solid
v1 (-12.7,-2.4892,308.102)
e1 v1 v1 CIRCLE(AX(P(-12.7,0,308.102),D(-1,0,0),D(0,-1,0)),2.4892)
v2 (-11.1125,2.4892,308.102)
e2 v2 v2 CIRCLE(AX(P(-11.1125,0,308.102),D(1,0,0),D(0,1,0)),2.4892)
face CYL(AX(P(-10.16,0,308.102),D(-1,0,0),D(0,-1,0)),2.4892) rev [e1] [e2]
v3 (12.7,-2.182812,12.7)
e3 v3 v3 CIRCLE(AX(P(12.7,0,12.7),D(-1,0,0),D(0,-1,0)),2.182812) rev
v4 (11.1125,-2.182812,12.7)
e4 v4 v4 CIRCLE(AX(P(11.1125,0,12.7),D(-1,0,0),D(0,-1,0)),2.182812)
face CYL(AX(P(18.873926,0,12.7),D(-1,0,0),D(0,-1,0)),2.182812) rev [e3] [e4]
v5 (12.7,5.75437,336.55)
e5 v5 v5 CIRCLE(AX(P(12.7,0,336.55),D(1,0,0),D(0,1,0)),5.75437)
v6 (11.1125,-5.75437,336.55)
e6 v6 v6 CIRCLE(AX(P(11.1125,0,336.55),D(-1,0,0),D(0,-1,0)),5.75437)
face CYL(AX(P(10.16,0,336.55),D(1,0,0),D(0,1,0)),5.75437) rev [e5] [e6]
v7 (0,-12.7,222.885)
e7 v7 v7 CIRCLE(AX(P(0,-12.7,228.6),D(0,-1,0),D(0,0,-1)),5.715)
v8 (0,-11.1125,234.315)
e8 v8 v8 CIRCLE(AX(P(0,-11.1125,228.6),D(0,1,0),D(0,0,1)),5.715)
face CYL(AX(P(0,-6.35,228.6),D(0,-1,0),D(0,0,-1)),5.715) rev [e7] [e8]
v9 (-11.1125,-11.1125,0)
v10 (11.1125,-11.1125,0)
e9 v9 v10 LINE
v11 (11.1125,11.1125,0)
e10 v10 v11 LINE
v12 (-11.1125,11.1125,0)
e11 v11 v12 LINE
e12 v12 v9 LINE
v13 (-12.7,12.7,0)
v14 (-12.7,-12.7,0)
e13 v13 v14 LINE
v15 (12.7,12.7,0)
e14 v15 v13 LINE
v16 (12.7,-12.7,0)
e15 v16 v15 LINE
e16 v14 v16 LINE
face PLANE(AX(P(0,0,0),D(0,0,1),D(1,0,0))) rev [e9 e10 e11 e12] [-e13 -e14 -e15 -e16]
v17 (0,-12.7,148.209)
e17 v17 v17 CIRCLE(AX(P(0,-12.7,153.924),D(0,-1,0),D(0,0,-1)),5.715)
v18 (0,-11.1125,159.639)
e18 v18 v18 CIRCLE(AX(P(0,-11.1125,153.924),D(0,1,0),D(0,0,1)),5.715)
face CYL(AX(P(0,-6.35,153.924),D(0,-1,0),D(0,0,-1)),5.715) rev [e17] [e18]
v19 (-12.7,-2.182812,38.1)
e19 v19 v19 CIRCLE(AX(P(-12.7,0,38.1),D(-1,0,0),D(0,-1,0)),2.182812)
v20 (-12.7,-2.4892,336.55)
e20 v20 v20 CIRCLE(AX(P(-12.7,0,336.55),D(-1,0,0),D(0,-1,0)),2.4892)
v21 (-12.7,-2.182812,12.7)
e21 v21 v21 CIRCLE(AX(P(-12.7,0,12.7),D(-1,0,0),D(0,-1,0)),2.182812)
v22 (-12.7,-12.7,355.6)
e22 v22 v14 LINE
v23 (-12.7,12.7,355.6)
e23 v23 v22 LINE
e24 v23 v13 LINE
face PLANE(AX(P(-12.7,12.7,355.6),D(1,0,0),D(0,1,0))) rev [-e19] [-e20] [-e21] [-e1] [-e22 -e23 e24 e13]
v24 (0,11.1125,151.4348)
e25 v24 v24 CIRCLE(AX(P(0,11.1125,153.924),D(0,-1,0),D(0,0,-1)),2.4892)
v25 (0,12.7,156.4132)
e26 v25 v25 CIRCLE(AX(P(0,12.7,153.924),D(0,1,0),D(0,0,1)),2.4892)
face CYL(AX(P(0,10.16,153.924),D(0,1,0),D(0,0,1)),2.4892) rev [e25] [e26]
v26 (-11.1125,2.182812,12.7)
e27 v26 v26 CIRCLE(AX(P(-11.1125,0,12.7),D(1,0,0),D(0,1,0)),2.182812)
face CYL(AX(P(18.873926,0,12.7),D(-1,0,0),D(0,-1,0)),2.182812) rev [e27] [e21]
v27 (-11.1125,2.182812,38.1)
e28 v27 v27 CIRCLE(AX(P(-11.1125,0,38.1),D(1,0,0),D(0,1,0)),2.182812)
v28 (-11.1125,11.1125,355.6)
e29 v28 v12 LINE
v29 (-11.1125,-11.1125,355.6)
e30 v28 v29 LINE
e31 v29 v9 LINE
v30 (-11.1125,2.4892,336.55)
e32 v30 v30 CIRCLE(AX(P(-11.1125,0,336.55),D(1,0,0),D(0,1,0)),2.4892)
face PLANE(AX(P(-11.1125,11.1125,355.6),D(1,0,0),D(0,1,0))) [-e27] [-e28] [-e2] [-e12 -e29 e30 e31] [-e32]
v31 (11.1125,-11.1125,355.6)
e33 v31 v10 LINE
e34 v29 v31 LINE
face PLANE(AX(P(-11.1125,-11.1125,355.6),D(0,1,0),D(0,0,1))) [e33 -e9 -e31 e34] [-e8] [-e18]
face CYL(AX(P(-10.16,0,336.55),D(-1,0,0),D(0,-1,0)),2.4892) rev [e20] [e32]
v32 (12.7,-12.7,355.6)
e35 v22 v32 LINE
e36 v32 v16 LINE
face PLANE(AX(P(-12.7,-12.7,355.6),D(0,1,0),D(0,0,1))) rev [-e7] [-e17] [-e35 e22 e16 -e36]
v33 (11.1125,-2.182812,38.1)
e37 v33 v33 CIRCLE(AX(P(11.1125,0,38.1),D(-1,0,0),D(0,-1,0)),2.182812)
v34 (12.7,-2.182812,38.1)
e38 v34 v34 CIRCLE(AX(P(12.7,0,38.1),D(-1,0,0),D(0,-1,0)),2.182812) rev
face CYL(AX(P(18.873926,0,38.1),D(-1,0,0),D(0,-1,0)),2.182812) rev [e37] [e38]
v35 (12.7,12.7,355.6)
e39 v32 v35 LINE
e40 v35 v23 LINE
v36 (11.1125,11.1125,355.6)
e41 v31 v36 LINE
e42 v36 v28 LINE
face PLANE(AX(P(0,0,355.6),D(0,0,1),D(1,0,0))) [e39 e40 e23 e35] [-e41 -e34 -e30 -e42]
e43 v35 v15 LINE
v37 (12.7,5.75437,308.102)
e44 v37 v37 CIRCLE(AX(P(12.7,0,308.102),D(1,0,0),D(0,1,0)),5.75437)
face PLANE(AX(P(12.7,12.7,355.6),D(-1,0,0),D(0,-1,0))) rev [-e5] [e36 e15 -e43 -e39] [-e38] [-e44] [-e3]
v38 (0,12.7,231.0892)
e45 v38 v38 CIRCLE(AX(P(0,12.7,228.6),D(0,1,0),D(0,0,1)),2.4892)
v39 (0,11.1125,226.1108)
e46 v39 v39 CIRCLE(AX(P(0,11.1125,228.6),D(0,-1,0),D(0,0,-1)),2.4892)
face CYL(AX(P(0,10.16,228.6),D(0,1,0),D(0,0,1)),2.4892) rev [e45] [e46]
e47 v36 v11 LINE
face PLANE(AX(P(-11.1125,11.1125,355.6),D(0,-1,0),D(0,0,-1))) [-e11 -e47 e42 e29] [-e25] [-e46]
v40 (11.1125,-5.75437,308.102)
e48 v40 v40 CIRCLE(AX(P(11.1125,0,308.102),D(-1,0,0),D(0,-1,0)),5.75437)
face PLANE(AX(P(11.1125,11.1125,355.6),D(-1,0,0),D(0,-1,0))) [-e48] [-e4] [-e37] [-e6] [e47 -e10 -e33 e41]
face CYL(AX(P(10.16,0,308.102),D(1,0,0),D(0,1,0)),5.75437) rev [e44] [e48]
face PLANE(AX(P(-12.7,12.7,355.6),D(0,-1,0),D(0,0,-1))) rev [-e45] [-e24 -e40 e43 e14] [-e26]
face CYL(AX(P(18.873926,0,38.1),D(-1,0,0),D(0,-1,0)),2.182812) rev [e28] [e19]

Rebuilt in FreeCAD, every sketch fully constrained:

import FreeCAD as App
import Part
import Sketcher
from FreeCAD import Vector
Q = App.Units.Quantity


def add_polygon(sketch, points):
    """Adds a closed chain of lines whose ends are joined by coincident constraints."""
    first, n = sketch.GeometryCount, len(points)
    for a, b in zip(points, points[1:] + points[:1]):
        sketch.addGeometry(Part.LineSegment(App.Vector(*a, 0), App.Vector(*b, 0)), False)
    for i in range(n):
        sketch.addConstraint(Sketcher.Constraint("Coincident", first + i, 2, first + (i + 1) % n, 1))

doc = App.newDocument("Part")
body = doc.addObject("PartDesign::Body", "Body")

# Sketch on XY plane
sketch1 = body.newObject("Sketcher::SketchObject", "Sketch")
sketch1.AttachmentSupport = (doc.getObject("XY_Plane"), [""])
sketch1.MapMode = "FlatFace"
add_polygon(sketch1, [(-13, 13), (-13, -13), (13, -13), (13, 13)])  # lines 0-3
add_polygon(sketch1, [(11, -11), (-11, -11), (-11, 11), (11, 11)])  # lines 4-7
sketch1.addConstraint(Sketcher.Constraint("Vertical", 0))
sketch1.addConstraint(Sketcher.Constraint("Horizontal", 1))
sketch1.addConstraint(Sketcher.Constraint("Vertical", 2))
sketch1.addConstraint(Sketcher.Constraint("Horizontal", 3))
sketch1.addConstraint(Sketcher.Constraint("Horizontal", 4))
sketch1.addConstraint(Sketcher.Constraint("Vertical", 5))
sketch1.addConstraint(Sketcher.Constraint("Horizontal", 6))
sketch1.addConstraint(Sketcher.Constraint("Vertical", 7))
sketch1.addConstraint(Sketcher.Constraint("Symmetric", 0, 2, 2, 2, -1, 1))
sketch1.addConstraint(Sketcher.Constraint("Symmetric", 4, 2, 6, 2, -1, 1))
sketch1.addConstraint(Sketcher.Constraint("Equal", 3, 0))
sketch1.addConstraint(Sketcher.Constraint("Equal", 6, 5))
sketch1.addConstraint(Sketcher.Constraint("DistanceX", 1, 1, 1, 2, Q("1 in")))
sketch1.addConstraint(Sketcher.Constraint("DistanceX", 4, 2, 4, 1, Q("0.875 in")))
pad1 = body.newObject("PartDesign::Pad", "Pad")
pad1.Profile = sketch1
pad1.Length = Q("14 in")

# Sketch on YZ plane
sketch2 = body.newObject("Sketcher::SketchObject", "Sketch001")
sketch2.AttachmentSupport = (doc.getObject("YZ_Plane"), [""])
sketch2.MapMode = "FlatFace"
sketch2.AttachmentOffset = App.Placement(Vector(0, 0, -0.5 * 25.4), App.Rotation())
sketch2.addGeometry(Part.Circle(Vector(0, 336.6, 0), Vector(0, 0, 1), 2.5), False)
sketch2.addGeometry(Part.Circle(Vector(0, 308.1, 0), Vector(0, 0, 1), 2.5), False)
sketch2.addConstraint(Sketcher.Constraint("Equal", 0, 1))
sketch2.addConstraint(Sketcher.Constraint("PointOnObject", 0, 3, -2))
sketch2.addConstraint(Sketcher.Constraint("PointOnObject", 1, 3, -2))
sketch2.addConstraint(Sketcher.Constraint("Diameter", 0, Q("0.196 in")))
sketch2.addConstraint(Sketcher.Constraint("DistanceY", -1, 1, 0, 3, Q("13.25 in")))
sketch2.addConstraint(Sketcher.Constraint("DistanceY", -1, 1, 1, 3, Q("12.13 in")))
pocket1 = body.newObject("PartDesign::Pocket", "Pocket")
pocket1.Profile = sketch2
pocket1.Length = Q("0.1 in")
pocket1.Reversed = True

# Sketch on XZ plane
sketch3 = body.newObject("Sketcher::SketchObject", "Sketch002")
sketch3.AttachmentSupport = (doc.getObject("XZ_Plane"), [""])
sketch3.MapMode = "FlatFace"
sketch3.AttachmentOffset = App.Placement(Vector(0, 0, 0.5 * 25.4), App.Rotation())
sketch3.addGeometry(Part.Circle(Vector(0, 229, 0), Vector(0, 0, 1), 6), False)
sketch3.addGeometry(Part.Circle(Vector(0, 154, 0), Vector(0, 0, 1), 6), False)
sketch3.addConstraint(Sketcher.Constraint("Equal", 0, 1))
sketch3.addConstraint(Sketcher.Constraint("PointOnObject", 0, 3, -2))
sketch3.addConstraint(Sketcher.Constraint("PointOnObject", 1, 3, -2))
sketch3.addConstraint(Sketcher.Constraint("Diameter", 0, Q("0.45 in")))
sketch3.addConstraint(Sketcher.Constraint("DistanceY", -1, 1, 0, 3, Q("9 in")))
sketch3.addConstraint(Sketcher.Constraint("DistanceY", -1, 1, 1, 3, Q("6.06 in")))
pocket2 = body.newObject("PartDesign::Pocket", "Pocket001")
pocket2.Profile = sketch3
pocket2.Length = Q("0.25 in")

# Sketch on XZ plane
sketch4 = body.newObject("Sketcher::SketchObject", "Sketch003")
sketch4.AttachmentSupport = (doc.getObject("XZ_Plane"), [""])
sketch4.MapMode = "FlatFace"
sketch4.AttachmentOffset = App.Placement(Vector(0, 0, -0.5 * 25.4), App.Rotation())
sketch4.addGeometry(Part.Circle(Vector(0, 228.6, 0), Vector(0, 0, 1), 2.5), False)
sketch4.addGeometry(Part.Circle(Vector(0, 153.9, 0), Vector(0, 0, 1), 2.5), False)
sketch4.addConstraint(Sketcher.Constraint("Equal", 0, 1))
sketch4.addConstraint(Sketcher.Constraint("PointOnObject", 0, 3, -2))
sketch4.addConstraint(Sketcher.Constraint("PointOnObject", 1, 3, -2))
sketch4.addConstraint(Sketcher.Constraint("Diameter", 0, Q("0.196 in")))
sketch4.addConstraint(Sketcher.Constraint("DistanceY", -1, 1, 0, 3, Q("9 in")))
sketch4.addConstraint(Sketcher.Constraint("DistanceY", -1, 1, 1, 3, Q("6.06 in")))
pocket3 = body.newObject("PartDesign::Pocket", "Pocket002")
pocket3.Profile = sketch4
pocket3.Length = Q("0.1 in")
pocket3.Reversed = True

# Sketch on YZ plane
sketch5 = body.newObject("Sketcher::SketchObject", "Sketch004")
sketch5.AttachmentSupport = (doc.getObject("YZ_Plane"), [""])
sketch5.MapMode = "FlatFace"
sketch5.AttachmentOffset = App.Placement(Vector(0, 0, 0.5 * 25.4), App.Rotation())
sketch5.addGeometry(Part.Circle(Vector(0, 337, 0), Vector(0, 0, 1), 6), False)
sketch5.addGeometry(Part.Circle(Vector(0, 308, 0), Vector(0, 0, 1), 6), False)
sketch5.addConstraint(Sketcher.Constraint("Equal", 0, 1))
sketch5.addConstraint(Sketcher.Constraint("PointOnObject", 0, 3, -2))
sketch5.addConstraint(Sketcher.Constraint("PointOnObject", 1, 3, -2))
sketch5.addConstraint(Sketcher.Constraint("Diameter", 0, Q("0.4531 in")))
sketch5.addConstraint(Sketcher.Constraint("DistanceY", -1, 1, 0, 3, Q("13.25 in")))
sketch5.addConstraint(Sketcher.Constraint("DistanceY", -1, 1, 1, 3, Q("12.13 in")))
pocket4 = body.newObject("PartDesign::Pocket", "Pocket003")
pocket4.Profile = sketch5
pocket4.Length = Q("0.1 in")

# Sketch on YZ plane
sketch6 = body.newObject("Sketcher::SketchObject", "Sketch005")
sketch6.AttachmentSupport = (doc.getObject("YZ_Plane"), [""])
sketch6.MapMode = "FlatFace"
sketch6.AttachmentOffset = App.Placement(Vector(0, 0, -0.5 * 25.4), App.Rotation())
sketch6.addGeometry(Part.Circle(Vector(0, 12.7, 0), Vector(0, 0, 1), 2.2), False)
sketch6.addGeometry(Part.Circle(Vector(0, 38.1, 0), Vector(0, 0, 1), 2.2), False)
sketch6.addConstraint(Sketcher.Constraint("Equal", 0, 1))
sketch6.addConstraint(Sketcher.Constraint("PointOnObject", 0, 3, -2))
sketch6.addConstraint(Sketcher.Constraint("PointOnObject", 1, 3, -2))
sketch6.addConstraint(Sketcher.Constraint("Diameter", 0, Q("0.171875 in")))
sketch6.addConstraint(Sketcher.Constraint("DistanceY", 0, 3, 1, 3, Q("1 in")))
sketch6.addConstraint(Sketcher.Constraint("DistanceY", -1, 1, 0, 3, Q("0.5 in")))
pocket5 = body.newObject("PartDesign::Pocket", "Pocket004")
pocket5.Profile = sketch6
pocket5.Length = Q("1 in")
pocket5.Reversed = True

doc.recompute()
